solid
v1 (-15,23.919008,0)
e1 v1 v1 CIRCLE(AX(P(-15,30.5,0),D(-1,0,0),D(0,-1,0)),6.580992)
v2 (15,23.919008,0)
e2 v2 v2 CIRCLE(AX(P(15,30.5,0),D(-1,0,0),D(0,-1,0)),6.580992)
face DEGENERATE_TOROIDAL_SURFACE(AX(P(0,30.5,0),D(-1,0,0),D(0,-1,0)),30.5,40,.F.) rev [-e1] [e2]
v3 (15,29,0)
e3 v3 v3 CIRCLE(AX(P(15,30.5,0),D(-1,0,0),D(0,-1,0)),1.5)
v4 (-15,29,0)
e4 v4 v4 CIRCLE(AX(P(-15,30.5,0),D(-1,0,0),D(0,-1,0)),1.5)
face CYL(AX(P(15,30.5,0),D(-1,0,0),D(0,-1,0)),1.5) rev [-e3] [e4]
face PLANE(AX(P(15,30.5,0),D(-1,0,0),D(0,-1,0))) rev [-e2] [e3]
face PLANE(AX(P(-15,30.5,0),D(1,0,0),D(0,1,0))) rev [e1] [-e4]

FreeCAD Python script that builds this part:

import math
import FreeCAD as App
import Part
import Sketcher
Q = App.Units.Quantity

doc = App.newDocument("Part")
body = doc.addObject("PartDesign::Body", "Body")

# Sketch on XY plane
sketch1 = doc.addObject("Sketcher::SketchObject", "Sketch")
body.addObject(sketch1)
sketch1.AttachmentSupport = (doc.XY_Plane, [""])
sketch1.MapMode = "FlatFace"
sketch1.addGeometry(Part.LineSegment(App.Vector(-15, 37, 0), App.Vector(-15, 30, 0)), False)
sketch1.addGeometry(Part.LineSegment(App.Vector(-15, 30, 0), App.Vector(15, 30, 0)), False)
sketch1.addGeometry(Part.LineSegment(App.Vector(15, 30, 0), App.Vector(15, 37, 0)), False)
sketch1.addGeometry(Part.ArcOfCircle(Part.Circle(App.Vector(0, 0, 0), App.Vector(0, 0, 1), 40), math.radians(68), math.radians(112)), False)
sketch1.addGeometry(Part.LineSegment(App.Vector(-15, 30, 0), App.Vector(15, 30, 0)), True)  # axis
sketch1.addConstraint(Sketcher.Constraint("Coincident", 0, 2, 1, 1))
sketch1.addConstraint(Sketcher.Constraint("Coincident", 1, 2, 2, 1))
sketch1.addConstraint(Sketcher.Constraint("Coincident", 2, 2, 3, 1))
sketch1.addConstraint(Sketcher.Constraint("Coincident", 3, 2, 0, 1))
sketch1.addConstraint(Sketcher.Constraint("Vertical", 0))
sketch1.addConstraint(Sketcher.Constraint("Horizontal", 1))
sketch1.addConstraint(Sketcher.Constraint("Vertical", 2))
sketch1.addConstraint(Sketcher.Constraint("Horizontal", 4))
sketch1.addConstraint(Sketcher.Constraint("Coincident", 3, 3, -1, 1))
sketch1.addConstraint(Sketcher.Constraint("Coincident", 4, 1, 0, 2))
sketch1.addConstraint(Sketcher.Constraint("Horizontal", 2, 2, 3, 2))
sketch1.addConstraint(Sketcher.Constraint("Vertical", 2, 2, 4, 2))
sketch1.addConstraint(Sketcher.Constraint("Radius", 3, Q("40 mm")))
sketch1.addConstraint(Sketcher.Constraint("DistanceX", 1, 1, 1, 2, Q("30 mm")))
sketch1.addConstraint(Sketcher.Constraint("DistanceY", -1, 1, 0, 2, Q("30.5 mm")))
revolution = doc.addObject("PartDesign::Revolution", "Revolution")
body.addObject(revolution)
revolution.Profile = sketch1
revolution.ReferenceAxis = (sketch1, ["Axis0"])
revolution.Angle = 360

# Sketch on YZ plane
sketch2 = doc.addObject("Sketcher::SketchObject", "Sketch001")
body.addObject(sketch2)
sketch2.AttachmentSupport = (doc.YZ_Plane, [""])
sketch2.MapMode = "FlatFace"
sketch2.AttachmentOffset = App.Placement(App.Vector(0, 0, -15), App.Rotation())
sketch2.addGeometry(Part.Circle(App.Vector(30.5, 0, 0), App.Vector(0, 0, 1), 1.5), False)
sketch2.addConstraint(Sketcher.Constraint("PointOnObject", 0, 3, -1))
sketch2.addConstraint(Sketcher.Constraint("Diameter", 0, Q("3 mm")))
sketch2.addConstraint(Sketcher.Constraint("DistanceX", -1, 1, 0, 3, Q("30.5 mm")))
pocket1 = doc.addObject("PartDesign::Pocket", "Pocket")
body.addObject(pocket1)
pocket1.Profile = sketch2
pocket1.Type = "ThroughAll"
pocket1.Reversed = True

doc.recompute()
